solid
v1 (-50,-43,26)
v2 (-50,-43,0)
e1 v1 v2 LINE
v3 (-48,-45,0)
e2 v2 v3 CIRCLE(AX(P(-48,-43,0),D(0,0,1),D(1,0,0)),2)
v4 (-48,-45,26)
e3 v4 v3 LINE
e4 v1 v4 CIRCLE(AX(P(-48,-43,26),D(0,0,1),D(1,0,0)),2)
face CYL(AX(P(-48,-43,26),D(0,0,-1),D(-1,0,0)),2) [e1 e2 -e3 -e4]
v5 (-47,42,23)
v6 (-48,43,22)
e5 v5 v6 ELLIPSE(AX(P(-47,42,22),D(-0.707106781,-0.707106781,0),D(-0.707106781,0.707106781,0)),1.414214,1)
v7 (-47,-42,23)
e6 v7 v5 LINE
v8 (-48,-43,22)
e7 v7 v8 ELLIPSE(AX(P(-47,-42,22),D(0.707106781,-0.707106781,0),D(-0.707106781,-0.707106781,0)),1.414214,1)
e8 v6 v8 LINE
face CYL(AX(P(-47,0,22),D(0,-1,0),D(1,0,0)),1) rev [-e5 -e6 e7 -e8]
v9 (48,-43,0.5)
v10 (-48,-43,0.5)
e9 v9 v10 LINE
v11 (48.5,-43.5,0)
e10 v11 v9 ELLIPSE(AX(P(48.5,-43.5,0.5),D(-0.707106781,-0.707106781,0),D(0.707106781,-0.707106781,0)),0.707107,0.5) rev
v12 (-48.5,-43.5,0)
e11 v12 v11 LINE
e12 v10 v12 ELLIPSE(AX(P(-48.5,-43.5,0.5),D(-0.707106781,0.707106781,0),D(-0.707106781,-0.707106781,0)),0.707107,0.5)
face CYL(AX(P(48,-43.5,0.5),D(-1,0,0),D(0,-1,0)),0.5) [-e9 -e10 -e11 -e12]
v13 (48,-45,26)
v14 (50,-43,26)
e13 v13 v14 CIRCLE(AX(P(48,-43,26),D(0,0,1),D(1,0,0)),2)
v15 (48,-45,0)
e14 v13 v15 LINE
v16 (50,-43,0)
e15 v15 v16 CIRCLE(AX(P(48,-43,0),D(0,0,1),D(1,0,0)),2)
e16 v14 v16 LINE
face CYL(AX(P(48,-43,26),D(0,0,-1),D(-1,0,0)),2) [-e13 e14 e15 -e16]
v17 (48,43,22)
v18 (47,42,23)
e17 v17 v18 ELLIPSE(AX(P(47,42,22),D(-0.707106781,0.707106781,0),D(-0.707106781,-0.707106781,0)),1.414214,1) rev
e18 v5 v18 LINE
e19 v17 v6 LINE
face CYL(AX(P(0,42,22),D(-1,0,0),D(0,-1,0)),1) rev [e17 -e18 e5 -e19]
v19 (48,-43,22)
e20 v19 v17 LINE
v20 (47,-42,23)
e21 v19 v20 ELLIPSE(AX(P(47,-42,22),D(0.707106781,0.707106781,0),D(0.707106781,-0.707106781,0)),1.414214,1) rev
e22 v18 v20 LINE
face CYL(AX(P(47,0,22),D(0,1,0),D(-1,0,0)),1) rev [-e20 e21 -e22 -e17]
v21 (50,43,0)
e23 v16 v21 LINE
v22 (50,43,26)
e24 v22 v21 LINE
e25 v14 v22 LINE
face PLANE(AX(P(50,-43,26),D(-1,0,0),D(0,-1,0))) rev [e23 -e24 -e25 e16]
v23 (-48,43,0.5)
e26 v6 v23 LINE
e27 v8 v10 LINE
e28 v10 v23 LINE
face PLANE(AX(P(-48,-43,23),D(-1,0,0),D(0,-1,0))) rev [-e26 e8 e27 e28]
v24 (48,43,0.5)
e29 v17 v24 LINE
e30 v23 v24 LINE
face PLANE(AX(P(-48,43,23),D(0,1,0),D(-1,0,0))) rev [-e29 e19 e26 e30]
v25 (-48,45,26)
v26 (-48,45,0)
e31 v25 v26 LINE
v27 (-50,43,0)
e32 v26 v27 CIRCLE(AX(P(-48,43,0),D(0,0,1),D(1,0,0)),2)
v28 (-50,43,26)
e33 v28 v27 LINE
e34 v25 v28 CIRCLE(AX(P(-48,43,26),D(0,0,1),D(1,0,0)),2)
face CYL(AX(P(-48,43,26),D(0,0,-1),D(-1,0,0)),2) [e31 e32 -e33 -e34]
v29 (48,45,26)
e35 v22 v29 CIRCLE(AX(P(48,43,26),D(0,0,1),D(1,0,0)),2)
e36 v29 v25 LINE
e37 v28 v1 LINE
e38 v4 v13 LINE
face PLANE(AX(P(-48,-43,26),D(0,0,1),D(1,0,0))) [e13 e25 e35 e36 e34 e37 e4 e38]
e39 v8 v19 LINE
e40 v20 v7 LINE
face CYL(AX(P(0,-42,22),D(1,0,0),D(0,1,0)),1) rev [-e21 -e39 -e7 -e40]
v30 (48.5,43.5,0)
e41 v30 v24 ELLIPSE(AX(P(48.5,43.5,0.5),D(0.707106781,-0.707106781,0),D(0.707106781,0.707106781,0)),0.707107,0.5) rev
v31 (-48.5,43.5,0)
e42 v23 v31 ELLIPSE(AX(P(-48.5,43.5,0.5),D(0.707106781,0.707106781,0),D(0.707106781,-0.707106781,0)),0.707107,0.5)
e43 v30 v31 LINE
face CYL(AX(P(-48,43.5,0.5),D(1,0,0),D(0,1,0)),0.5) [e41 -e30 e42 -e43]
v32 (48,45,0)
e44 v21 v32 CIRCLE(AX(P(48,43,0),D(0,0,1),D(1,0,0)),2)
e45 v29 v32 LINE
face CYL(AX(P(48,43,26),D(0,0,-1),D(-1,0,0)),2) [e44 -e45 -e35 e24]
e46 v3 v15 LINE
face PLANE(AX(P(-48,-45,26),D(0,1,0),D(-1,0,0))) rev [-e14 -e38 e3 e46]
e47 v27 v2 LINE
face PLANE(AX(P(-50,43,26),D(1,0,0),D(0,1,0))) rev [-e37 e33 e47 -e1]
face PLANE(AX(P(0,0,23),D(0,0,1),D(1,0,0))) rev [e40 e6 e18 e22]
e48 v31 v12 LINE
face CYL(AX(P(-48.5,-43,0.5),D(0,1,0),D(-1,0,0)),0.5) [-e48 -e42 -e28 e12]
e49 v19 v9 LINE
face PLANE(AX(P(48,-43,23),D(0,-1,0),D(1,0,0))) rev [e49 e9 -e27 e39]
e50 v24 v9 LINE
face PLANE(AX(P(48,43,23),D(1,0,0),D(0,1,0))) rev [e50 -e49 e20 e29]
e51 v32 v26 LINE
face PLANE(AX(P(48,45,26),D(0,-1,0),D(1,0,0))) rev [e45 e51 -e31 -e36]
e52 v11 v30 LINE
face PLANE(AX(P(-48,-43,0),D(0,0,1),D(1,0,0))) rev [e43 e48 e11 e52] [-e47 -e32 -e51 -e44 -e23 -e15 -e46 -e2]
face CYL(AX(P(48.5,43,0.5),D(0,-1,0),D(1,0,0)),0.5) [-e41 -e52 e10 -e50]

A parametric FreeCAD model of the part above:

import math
import FreeCAD as App
import Part
import Sketcher
Q = App.Units.Quantity


def edges_at(feature, points):
    """Names of the edges that pass closest to the given points."""
    edges = feature.Shape.Edges
    near = lambda p: min(range(len(edges)), key=lambda i: edges[i].distToShape(Part.Vertex(*p))[0])
    return sorted({f"Edge{near(p) + 1}" for p in points})

doc = App.newDocument("Part")
body = doc.addObject("PartDesign::Body", "Body")

sketch1 = body.newObject("Sketcher::SketchObject", "Sketch")
sketch1.AttachmentSupport = (doc.getObject("XY_Plane"), [""])
sketch1.MapMode = "FlatFace"
sketch1.addGeometry([
    Part.LineSegment(App.Vector(-48, -45, 0), App.Vector(48, -45, 0)),
    Part.ArcOfCircle(Part.Circle(App.Vector(48, -43, 0), App.Vector(0, 0, 1), 2), math.radians(-90), math.radians(0)),
    Part.LineSegment(App.Vector(50, -43, 0), App.Vector(50, 43, 0)),
    Part.ArcOfCircle(Part.Circle(App.Vector(48, 43, 0), App.Vector(0, 0, 1), 2), math.radians(0), math.radians(90)),
    Part.LineSegment(App.Vector(48, 45, 0), App.Vector(-48, 45, 0)),
    Part.ArcOfCircle(Part.Circle(App.Vector(-48, 43, 0), App.Vector(0, 0, 1), 2), math.radians(90), math.radians(180)),
    Part.LineSegment(App.Vector(-50, 43, 0), App.Vector(-50, -43, 0)),
    Part.ArcOfCircle(Part.Circle(App.Vector(-48, -43, 0), App.Vector(0, 0, 1), 2), math.radians(-180), math.radians(-90)),
], False)
sketch1.addConstraint([
    Sketcher.Constraint("Tangent", 0, 2, 1, 1),
    Sketcher.Constraint("Tangent", 1, 2, 2, 1),
    Sketcher.Constraint("Tangent", 2, 2, 3, 1),
    Sketcher.Constraint("Tangent", 3, 2, 4, 1),
    Sketcher.Constraint("Tangent", 4, 2, 5, 1),
    Sketcher.Constraint("Tangent", 5, 2, 6, 1),
    Sketcher.Constraint("Tangent", 6, 2, 7, 1),
    Sketcher.Constraint("Tangent", 7, 2, 0, 1),
    Sketcher.Constraint("Horizontal", 0),
    Sketcher.Constraint("Vertical", 2),
    Sketcher.Constraint("Horizontal", 4),
    Sketcher.Constraint("Vertical", 6),
    Sketcher.Constraint("Equal", 1, 3),
    Sketcher.Constraint("Equal", 3, 5),
    Sketcher.Constraint("Equal", 5, 7),
    Sketcher.Constraint("Symmetric", 1, 3, 5, 3, -1, 1),
    Sketcher.Constraint("Radius", 1, Q("2 mm")),
    Sketcher.Constraint("DistanceX", 0, 1, 0, 2, Q("96 mm")),
    Sketcher.Constraint("DistanceY", 2, 1, 2, 2, Q("86 mm")),
])
pad1 = body.newObject("PartDesign::Pad", "Pad")
pad1.Profile = sketch1
pad1.Length = 26

sketch2 = body.newObject("Sketcher::SketchObject", "Sketch001")
sketch2.AttachmentSupport = (doc.getObject("XY_Plane"), [""])
sketch2.MapMode = "FlatFace"
sketch2.addGeometry([
    Part.LineSegment(App.Vector(48, 42, 0), App.Vector(48, -42, 0)),
    Part.LineSegment(App.Vector(48, -42, 0), App.Vector(-48, -42, 0)),
    Part.LineSegment(App.Vector(-48, -42, 0), App.Vector(-48, 42, 0)),
    Part.LineSegment(App.Vector(-48, 42, 0), App.Vector(48, 42, 0)),
], False)
sketch2.addConstraint([
    Sketcher.Constraint("Coincident", 0, 2, 1, 1),
    Sketcher.Constraint("Coincident", 1, 2, 2, 1),
    Sketcher.Constraint("Coincident", 2, 2, 3, 1),
    Sketcher.Constraint("Coincident", 3, 2, 0, 1),
    Sketcher.Constraint("Vertical", 0),
    Sketcher.Constraint("Horizontal", 1),
    Sketcher.Constraint("Vertical", 2),
    Sketcher.Constraint("Horizontal", 3),
    Sketcher.Constraint("Symmetric", 0, 2, 2, 2, -1, 1),
    Sketcher.Constraint("DistanceX", 1, 2, 1, 1, Q("95 mm")),
    Sketcher.Constraint("DistanceY", 0, 2, 0, 1, Q("85 mm")),
])
pocket1 = body.newObject("PartDesign::Pocket", "Pocket")
pocket1.Profile = sketch2
pocket1.Length = 23
pocket1.Reversed = True

sketch3 = body.newObject("Sketcher::SketchObject", "Sketch002")
sketch3.AttachmentSupport = (doc.getObject("XY_Plane"), [""])
sketch3.MapMode = "FlatFace"
sketch3.addGeometry([
    Part.LineSegment(App.Vector(48, 43, 0), App.Vector(48, -43, 0)),
    Part.LineSegment(App.Vector(48, -43, 0), App.Vector(-48, -43, 0)),
    Part.LineSegment(App.Vector(-48, -43, 0), App.Vector(-48, 43, 0)),
    Part.LineSegment(App.Vector(-48, 43, 0), App.Vector(48, 43, 0)),
], False)
sketch3.addConstraint([
    Sketcher.Constraint("Coincident", 0, 2, 1, 1),
    Sketcher.Constraint("Coincident", 1, 2, 2, 1),
    Sketcher.Constraint("Coincident", 2, 2, 3, 1),
    Sketcher.Constraint("Coincident", 3, 2, 0, 1),
    Sketcher.Constraint("Vertical", 0),
    Sketcher.Constraint("Horizontal", 1),
    Sketcher.Constraint("Vertical", 2),
    Sketcher.Constraint("Horizontal", 3),
    Sketcher.Constraint("Symmetric", 0, 2, 2, 2, -1, 1),
    Sketcher.Constraint("DistanceX", 1, 2, 1, 1, Q("96 mm")),
    Sketcher.Constraint("DistanceY", 0, 2, 0, 1, Q("86 mm")),
])
pocket2 = body.newObject("PartDesign::Pocket", "Pocket001")
pocket2.Profile = sketch3
pocket2.Length = 23
pocket2.Reversed = True
doc.recompute()

fillet = body.newObject("PartDesign::Fillet", "Fillet")
fillet.Base = (pocket2, edges_at(pocket2, [
    (48, 0, 23),
    (0, 43, 23),
    (-48, 0, 23),
    (0, -43, 23),
]))
fillet.Radius = 1
doc.recompute()

fillet2 = body.newObject("PartDesign::Fillet", "Fillet001")
fillet2.Base = (fillet, edges_at(fillet, [
    (48, 0, 0),
    (0, -43, 0),
    (-48, 0, 0),
    (0, 43, 0),
]))
fillet2.Radius = 0.5

doc.recompute()
